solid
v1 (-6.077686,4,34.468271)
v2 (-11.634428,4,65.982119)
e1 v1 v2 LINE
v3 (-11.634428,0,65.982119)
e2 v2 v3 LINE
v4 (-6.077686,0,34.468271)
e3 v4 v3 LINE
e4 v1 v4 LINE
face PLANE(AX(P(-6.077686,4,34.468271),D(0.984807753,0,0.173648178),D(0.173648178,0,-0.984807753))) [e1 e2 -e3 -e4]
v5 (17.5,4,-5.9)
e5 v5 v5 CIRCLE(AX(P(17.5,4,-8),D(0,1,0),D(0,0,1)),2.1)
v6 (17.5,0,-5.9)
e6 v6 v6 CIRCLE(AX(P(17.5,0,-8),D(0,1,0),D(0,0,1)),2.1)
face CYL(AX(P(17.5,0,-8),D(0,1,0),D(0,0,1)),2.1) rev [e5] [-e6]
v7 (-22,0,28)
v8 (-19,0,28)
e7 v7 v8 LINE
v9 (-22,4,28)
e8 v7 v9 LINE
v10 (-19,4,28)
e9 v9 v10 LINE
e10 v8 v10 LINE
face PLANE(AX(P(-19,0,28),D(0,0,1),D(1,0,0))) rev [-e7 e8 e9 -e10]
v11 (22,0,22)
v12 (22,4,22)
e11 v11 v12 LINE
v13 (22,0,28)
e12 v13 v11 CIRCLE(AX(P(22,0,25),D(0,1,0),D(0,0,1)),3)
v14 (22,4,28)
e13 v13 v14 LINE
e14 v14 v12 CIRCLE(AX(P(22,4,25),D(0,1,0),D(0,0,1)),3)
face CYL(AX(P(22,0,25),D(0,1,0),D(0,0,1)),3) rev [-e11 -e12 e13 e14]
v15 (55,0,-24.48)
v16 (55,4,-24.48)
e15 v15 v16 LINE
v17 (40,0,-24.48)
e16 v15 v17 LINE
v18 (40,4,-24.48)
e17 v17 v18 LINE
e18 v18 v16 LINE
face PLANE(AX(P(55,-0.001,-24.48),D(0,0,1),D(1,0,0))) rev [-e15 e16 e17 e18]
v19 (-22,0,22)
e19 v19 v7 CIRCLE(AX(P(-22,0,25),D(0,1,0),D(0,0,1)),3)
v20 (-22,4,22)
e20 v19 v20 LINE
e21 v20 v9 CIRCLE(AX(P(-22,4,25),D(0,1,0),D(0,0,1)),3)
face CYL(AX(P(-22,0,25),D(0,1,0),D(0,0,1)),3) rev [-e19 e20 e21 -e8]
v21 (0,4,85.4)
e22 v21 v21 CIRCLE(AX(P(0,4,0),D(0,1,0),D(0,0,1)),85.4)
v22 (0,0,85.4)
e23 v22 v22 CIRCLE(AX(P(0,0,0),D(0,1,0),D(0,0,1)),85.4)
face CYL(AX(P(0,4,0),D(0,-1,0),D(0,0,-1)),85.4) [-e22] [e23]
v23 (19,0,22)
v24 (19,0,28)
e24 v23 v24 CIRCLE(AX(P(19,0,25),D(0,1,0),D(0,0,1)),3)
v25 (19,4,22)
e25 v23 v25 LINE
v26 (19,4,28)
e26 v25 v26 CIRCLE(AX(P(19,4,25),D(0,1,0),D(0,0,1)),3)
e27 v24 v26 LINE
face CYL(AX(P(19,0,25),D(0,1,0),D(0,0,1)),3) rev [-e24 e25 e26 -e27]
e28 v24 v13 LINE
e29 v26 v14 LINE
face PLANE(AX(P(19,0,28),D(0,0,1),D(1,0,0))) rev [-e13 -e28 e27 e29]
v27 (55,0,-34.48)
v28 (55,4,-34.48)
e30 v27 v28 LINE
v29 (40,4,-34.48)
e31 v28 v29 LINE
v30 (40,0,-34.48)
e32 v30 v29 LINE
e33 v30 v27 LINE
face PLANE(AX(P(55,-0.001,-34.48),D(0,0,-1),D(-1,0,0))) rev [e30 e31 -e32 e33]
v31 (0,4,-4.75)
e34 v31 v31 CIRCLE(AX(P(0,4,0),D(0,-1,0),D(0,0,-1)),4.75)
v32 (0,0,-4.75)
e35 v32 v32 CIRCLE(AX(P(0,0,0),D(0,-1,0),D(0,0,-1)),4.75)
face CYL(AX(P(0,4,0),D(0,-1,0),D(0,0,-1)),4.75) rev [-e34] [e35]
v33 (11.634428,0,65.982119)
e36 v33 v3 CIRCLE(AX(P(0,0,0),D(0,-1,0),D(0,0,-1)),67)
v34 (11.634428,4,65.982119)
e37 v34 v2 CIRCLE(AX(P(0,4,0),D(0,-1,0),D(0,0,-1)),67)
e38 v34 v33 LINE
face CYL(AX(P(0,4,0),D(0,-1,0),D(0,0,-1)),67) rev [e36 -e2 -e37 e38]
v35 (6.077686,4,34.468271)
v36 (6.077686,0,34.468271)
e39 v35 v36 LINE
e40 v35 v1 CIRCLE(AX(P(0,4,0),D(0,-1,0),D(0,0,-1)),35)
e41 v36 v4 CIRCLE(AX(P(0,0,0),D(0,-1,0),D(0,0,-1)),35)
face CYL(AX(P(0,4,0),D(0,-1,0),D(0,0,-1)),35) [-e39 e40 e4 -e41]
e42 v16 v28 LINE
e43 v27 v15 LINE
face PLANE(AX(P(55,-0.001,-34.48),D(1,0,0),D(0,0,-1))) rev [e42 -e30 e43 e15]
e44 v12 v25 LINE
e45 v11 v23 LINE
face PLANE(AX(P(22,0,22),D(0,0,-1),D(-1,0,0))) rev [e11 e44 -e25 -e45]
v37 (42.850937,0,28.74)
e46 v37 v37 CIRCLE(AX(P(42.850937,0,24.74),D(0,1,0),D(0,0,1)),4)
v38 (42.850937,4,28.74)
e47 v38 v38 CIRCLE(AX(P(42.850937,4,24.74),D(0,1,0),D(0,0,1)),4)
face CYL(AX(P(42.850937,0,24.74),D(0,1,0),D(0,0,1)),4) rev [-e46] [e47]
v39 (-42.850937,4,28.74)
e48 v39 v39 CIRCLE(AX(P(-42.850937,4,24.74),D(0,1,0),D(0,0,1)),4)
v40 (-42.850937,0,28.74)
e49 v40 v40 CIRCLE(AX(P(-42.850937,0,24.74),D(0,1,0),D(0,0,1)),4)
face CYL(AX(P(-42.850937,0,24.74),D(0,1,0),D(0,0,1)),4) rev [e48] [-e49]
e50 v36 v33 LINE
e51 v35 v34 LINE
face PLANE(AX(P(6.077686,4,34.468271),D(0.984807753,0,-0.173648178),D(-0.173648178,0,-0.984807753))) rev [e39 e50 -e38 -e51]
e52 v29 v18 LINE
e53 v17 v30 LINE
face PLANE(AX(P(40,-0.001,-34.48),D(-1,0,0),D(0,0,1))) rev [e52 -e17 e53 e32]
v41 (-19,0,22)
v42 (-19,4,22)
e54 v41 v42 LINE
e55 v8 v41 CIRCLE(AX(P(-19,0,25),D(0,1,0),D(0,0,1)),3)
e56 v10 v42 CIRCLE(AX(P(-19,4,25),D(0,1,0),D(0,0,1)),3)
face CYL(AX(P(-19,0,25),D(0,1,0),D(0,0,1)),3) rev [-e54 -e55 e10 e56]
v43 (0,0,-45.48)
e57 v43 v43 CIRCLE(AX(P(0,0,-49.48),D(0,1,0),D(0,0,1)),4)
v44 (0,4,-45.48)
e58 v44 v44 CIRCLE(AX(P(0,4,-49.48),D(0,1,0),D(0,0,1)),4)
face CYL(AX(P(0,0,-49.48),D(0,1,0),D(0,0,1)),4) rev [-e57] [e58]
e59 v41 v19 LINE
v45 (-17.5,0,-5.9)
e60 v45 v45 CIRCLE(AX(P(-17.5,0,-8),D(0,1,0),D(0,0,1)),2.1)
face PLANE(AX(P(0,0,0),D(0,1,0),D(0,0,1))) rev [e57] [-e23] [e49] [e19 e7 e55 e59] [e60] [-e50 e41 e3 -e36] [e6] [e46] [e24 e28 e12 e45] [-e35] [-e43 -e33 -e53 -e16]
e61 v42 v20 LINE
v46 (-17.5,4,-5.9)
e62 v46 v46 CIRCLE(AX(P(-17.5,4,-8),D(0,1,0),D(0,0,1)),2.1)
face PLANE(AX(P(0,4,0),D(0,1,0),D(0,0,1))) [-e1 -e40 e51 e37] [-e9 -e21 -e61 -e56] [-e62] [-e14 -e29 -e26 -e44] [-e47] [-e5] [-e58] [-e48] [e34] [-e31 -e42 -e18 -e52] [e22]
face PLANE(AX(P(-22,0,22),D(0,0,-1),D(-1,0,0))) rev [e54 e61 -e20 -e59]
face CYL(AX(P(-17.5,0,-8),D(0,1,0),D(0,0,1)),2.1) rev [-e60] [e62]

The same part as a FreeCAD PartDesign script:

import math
import FreeCAD as App
import Part
import Sketcher
from FreeCAD import Vector
Q = App.Units.Quantity

doc = App.newDocument("Part")
body = doc.addObject("PartDesign::Body", "Body")

sketch1 = doc.addObject("Sketcher::SketchObject", "Sketch")
body.addObject(sketch1)
sketch1.AttachmentSupport = (doc.XZ_Plane, [""])
sketch1.MapMode = "FlatFace"
sketch1.addGeometry(Part.Circle(Vector(0, 0, 0), Vector(0, 0, 1), 85), False)
sketch1.addConstraint(Sketcher.Constraint("Coincident", 0, 3, -1, 1))
sketch1.addConstraint(Sketcher.Constraint("Diameter", 0, Q("170.8 mm")))
pad1 = doc.addObject("PartDesign::Pad", "Pad")
body.addObject(pad1)
pad1.Profile = sketch1
pad1.Length = 4
pad1.Reversed = True

sketch2 = doc.addObject("Sketcher::SketchObject", "Sketch001")
body.addObject(sketch2)
sketch2.AttachmentSupport = (doc.XZ_Plane, [""])
sketch2.MapMode = "FlatFace"
sketch2.addGeometry(Part.LineSegment(Vector(6, 34, 0), Vector(12, 66, 0)), False)
sketch2.addGeometry(Part.ArcOfCircle(Part.Circle(Vector(0, 0, 0), Vector(0, 0, 1), 67), math.radians(80), math.radians(100)), False)
sketch2.addGeometry(Part.LineSegment(Vector(-12, 66, 0), Vector(-6, 34, 0)), False)
sketch2.addGeometry(Part.ArcOfCircle(Part.Circle(Vector(0, 0, 0), Vector(0, 0, 1), 35), math.radians(80), math.radians(100)), False)
sketch2.addConstraint(Sketcher.Constraint("Coincident", 0, 2, 1, 1))
sketch2.addConstraint(Sketcher.Constraint("Coincident", 1, 2, 2, 1))
sketch2.addConstraint(Sketcher.Constraint("Coincident", 2, 2, 3, 2))
sketch2.addConstraint(Sketcher.Constraint("Coincident", 3, 1, 0, 1))
sketch2.addConstraint(Sketcher.Constraint("Coincident", 1, 3, -1, 1))
sketch2.addConstraint(Sketcher.Constraint("Coincident", 3, 3, -1, 1))
sketch2.addConstraint(Sketcher.Constraint("Horizontal", 0, 2, 1, 2))
sketch2.addConstraint(Sketcher.Constraint("Horizontal", 2, 2, 3, 1))
sketch2.addConstraint(Sketcher.Constraint("Radius", 1, Q("67 mm")))
sketch2.addConstraint(Sketcher.Constraint("Radius", 3, Q("35 mm")))
sketch2.addConstraint(Sketcher.Constraint("Angle", 0, Q("80 deg")))
sketch2.addConstraint(Sketcher.Constraint("DistanceY", -1, 1, 0, 2, Q("65.982119 mm")))
pocket1 = doc.addObject("PartDesign::Pocket", "Pocket")
body.addObject(pocket1)
pocket1.Profile = sketch2
pocket1.Type = "ThroughAll"

sketch3 = doc.addObject("Sketcher::SketchObject", "Sketch002")
body.addObject(sketch3)
sketch3.AttachmentSupport = (doc.XZ_Plane, [""])
sketch3.MapMode = "FlatFace"
sketch3.AttachmentOffset = App.Placement(Vector(0, 0, -4), App.Rotation())
sketch3.addGeometry(Part.Circle(Vector(42.9, 24.7, 0), Vector(0, 0, 1), 4), False)
sketch3.addGeometry(Part.Circle(Vector(0, -49.5, 0), Vector(0, 0, 1), 4), False)
sketch3.addGeometry(Part.Circle(Vector(-42.9, 24.7, 0), Vector(0, 0, 1), 4), False)
sketch3.addConstraint(Sketcher.Constraint("Equal", 0, 1))
sketch3.addConstraint(Sketcher.Constraint("Equal", 1, 2))
sketch3.addConstraint(Sketcher.Constraint("Symmetric", 0, 3, 2, 3, -2))
sketch3.addConstraint(Sketcher.Constraint("PointOnObject", 1, 3, -2))
sketch3.addConstraint(Sketcher.Constraint("Diameter", 0, Q("8 mm")))
sketch3.addConstraint(Sketcher.Constraint("DistanceY", -1, 1, 0, 3, Q("24.74 mm")))
sketch3.addConstraint(Sketcher.Constraint("DistanceY", 1, 3, -1, 1, Q("49.48 mm")))
sketch3.addConstraint(Sketcher.Constraint("DistanceX", -1, 1, 0, 3, Q("42.850937 mm")))
pocket2 = doc.addObject("PartDesign::Pocket", "Pocket001")
body.addObject(pocket2)
pocket2.Profile = sketch3
pocket2.Type = "ThroughAll"
pocket2.Reversed = True

sketch4 = doc.addObject("Sketcher::SketchObject", "Sketch003")
body.addObject(sketch4)
sketch4.AttachmentSupport = (doc.XZ_Plane, [""])
sketch4.MapMode = "FlatFace"
sketch4.addGeometry(Part.Circle(Vector(0, 0, 0), Vector(0, 0, 1), 4.8), False)
sketch4.addConstraint(Sketcher.Constraint("Coincident", 0, 3, -1, 1))
sketch4.addConstraint(Sketcher.Constraint("Diameter", 0, Q("9.5 mm")))
pocket3 = doc.addObject("PartDesign::Pocket", "Pocket002")
body.addObject(pocket3)
pocket3.Profile = sketch4
pocket3.Type = "ThroughAll"

sketch5 = doc.addObject("Sketcher::SketchObject", "Sketch004")
body.addObject(sketch5)
sketch5.AttachmentSupport = (doc.XZ_Plane, [""])
sketch5.MapMode = "FlatFace"
sketch5.AttachmentOffset = App.Placement(Vector(0, 0, -4), App.Rotation())
sketch5.addGeometry(Part.Circle(Vector(-17.5, -8, 0), Vector(0, 0, 1), 2.1), False)
sketch5.addGeometry(Part.Circle(Vector(17.5, -8, 0), Vector(0, 0, 1), 2.1), False)
sketch5.addGeometry(Part.LineSegment(Vector(-19, 22, 0), Vector(-22, 22, 0)), False)
sketch5.addGeometry(Part.ArcOfCircle(Part.Circle(Vector(-22, 25, 0), Vector(0, 0, 1), 3), math.radians(90), math.radians(270)), False)
sketch5.addGeometry(Part.LineSegment(Vector(-22, 28, 0), Vector(-19, 28, 0)), False)
sketch5.addGeometry(Part.ArcOfCircle(Part.Circle(Vector(-19, 25, 0), Vector(0, 0, 1), 3), math.radians(-90), math.radians(90)), False)
sketch5.addGeometry(Part.LineSegment(Vector(19, 28, 0), Vector(22, 28, 0)), False)
sketch5.addGeometry(Part.ArcOfCircle(Part.Circle(Vector(22, 25, 0), Vector(0, 0, 1), 3), math.radians(-90), math.radians(90)), False)
sketch5.addGeometry(Part.LineSegment(Vector(22, 22, 0), Vector(19, 22, 0)), False)
sketch5.addGeometry(Part.ArcOfCircle(Part.Circle(Vector(19, 25, 0), Vector(0, 0, 1), 3), math.radians(90), math.radians(270)), False)
sketch5.addConstraint(Sketcher.Constraint("Tangent", 2, 2, 3, 2))
sketch5.addConstraint(Sketcher.Constraint("Tangent", 3, 1, 4, 1))
sketch5.addConstraint(Sketcher.Constraint("Tangent", 4, 2, 5, 2))
sketch5.addConstraint(Sketcher.Constraint("Tangent", 5, 1, 2, 1))
sketch5.addConstraint(Sketcher.Constraint("Tangent", 6, 2, 7, 2))
sketch5.addConstraint(Sketcher.Constraint("Tangent", 7, 1, 8, 1))
sketch5.addConstraint(Sketcher.Constraint("Tangent", 8, 2, 9, 2))
sketch5.addConstraint(Sketcher.Constraint("Tangent", 9, 1, 6, 1))
sketch5.addConstraint(Sketcher.Constraint("Horizontal", 2))
sketch5.addConstraint(Sketcher.Constraint("Horizontal", 4))
sketch5.addConstraint(Sketcher.Constraint("Horizontal", 6))
sketch5.addConstraint(Sketcher.Constraint("Horizontal", 8))
sketch5.addConstraint(Sketcher.Constraint("Equal", 0, 1))
sketch5.addConstraint(Sketcher.Constraint("Equal", 5, 7))
sketch5.addConstraint(Sketcher.Constraint("Symmetric", 0, 3, 1, 3, -2))
sketch5.addConstraint(Sketcher.Constraint("Symmetric", 3, 3, 7, 3, -2))
sketch5.addConstraint(Sketcher.Constraint("Equal", 4, 6))
sketch5.addConstraint(Sketcher.Constraint("Radius", 3, Q("3 mm")))
sketch5.addConstraint(Sketcher.Constraint("Diameter", 0, Q("4.2 mm")))
sketch5.addConstraint(Sketcher.Constraint("DistanceX", 2, 2, 2, 1, Q("3 mm")))
sketch5.addConstraint(Sketcher.Constraint("DistanceY", 0, 3, -1, 1, Q("8 mm")))
sketch5.addConstraint(Sketcher.Constraint("DistanceX", 3, 3, -1, 1, Q("22 mm")))
sketch5.addConstraint(Sketcher.Constraint("DistanceY", -1, 1, 3, 3, Q("25 mm")))
sketch5.addConstraint(Sketcher.Constraint("DistanceX", 0, 3, 1, 3, Q("35 mm")))
pocket4 = doc.addObject("PartDesign::Pocket", "Pocket003")
body.addObject(pocket4)
pocket4.Profile = sketch5
pocket4.Type = "ThroughAll"
pocket4.Reversed = True

sketch6 = doc.addObject("Sketcher::SketchObject", "Sketch005")
body.addObject(sketch6)
sketch6.AttachmentSupport = (doc.XZ_Plane, [""])
sketch6.MapMode = "FlatFace"
sketch6.AttachmentOffset = App.Placement(Vector(0, 0, -4), App.Rotation())
sketch6.addGeometry(Part.LineSegment(Vector(40, -34, 0), Vector(40, -24, 0)), False)
sketch6.addGeometry(Part.LineSegment(Vector(40, -24, 0), Vector(55, -24, 0)), False)
sketch6.addGeometry(Part.LineSegment(Vector(55, -24, 0), Vector(55, -34, 0)), False)
sketch6.addGeometry(Part.LineSegment(Vector(55, -34, 0), Vector(40, -34, 0)), False)
sketch6.addConstraint(Sketcher.Constraint("Coincident", 0, 2, 1, 1))
sketch6.addConstraint(Sketcher.Constraint("Coincident", 1, 2, 2, 1))
sketch6.addConstraint(Sketcher.Constraint("Coincident", 2, 2, 3, 1))
sketch6.addConstraint(Sketcher.Constraint("Coincident", 3, 2, 0, 1))
sketch6.addConstraint(Sketcher.Constraint("Vertical", 0))
sketch6.addConstraint(Sketcher.Constraint("Horizontal", 1))
sketch6.addConstraint(Sketcher.Constraint("Vertical", 2))
sketch6.addConstraint(Sketcher.Constraint("Horizontal", 3))
sketch6.addConstraint(Sketcher.Constraint("DistanceX", 1, 1, 1, 2, Q("15 mm")))
sketch6.addConstraint(Sketcher.Constraint("DistanceY", 0, 1, 0, 2, Q("10 mm")))
sketch6.addConstraint(Sketcher.Constraint("DistanceX", -1, 1, 0, 2, Q("40 mm")))
sketch6.addConstraint(Sketcher.Constraint("DistanceY", 0, 2, -1, 1, Q("24.48 mm")))
pocket5 = doc.addObject("PartDesign::Pocket", "Pocket004")
body.addObject(pocket5)
pocket5.Profile = sketch6
pocket5.Type = "UpToFirst"
pocket5.Reversed = True

doc.recompute()
